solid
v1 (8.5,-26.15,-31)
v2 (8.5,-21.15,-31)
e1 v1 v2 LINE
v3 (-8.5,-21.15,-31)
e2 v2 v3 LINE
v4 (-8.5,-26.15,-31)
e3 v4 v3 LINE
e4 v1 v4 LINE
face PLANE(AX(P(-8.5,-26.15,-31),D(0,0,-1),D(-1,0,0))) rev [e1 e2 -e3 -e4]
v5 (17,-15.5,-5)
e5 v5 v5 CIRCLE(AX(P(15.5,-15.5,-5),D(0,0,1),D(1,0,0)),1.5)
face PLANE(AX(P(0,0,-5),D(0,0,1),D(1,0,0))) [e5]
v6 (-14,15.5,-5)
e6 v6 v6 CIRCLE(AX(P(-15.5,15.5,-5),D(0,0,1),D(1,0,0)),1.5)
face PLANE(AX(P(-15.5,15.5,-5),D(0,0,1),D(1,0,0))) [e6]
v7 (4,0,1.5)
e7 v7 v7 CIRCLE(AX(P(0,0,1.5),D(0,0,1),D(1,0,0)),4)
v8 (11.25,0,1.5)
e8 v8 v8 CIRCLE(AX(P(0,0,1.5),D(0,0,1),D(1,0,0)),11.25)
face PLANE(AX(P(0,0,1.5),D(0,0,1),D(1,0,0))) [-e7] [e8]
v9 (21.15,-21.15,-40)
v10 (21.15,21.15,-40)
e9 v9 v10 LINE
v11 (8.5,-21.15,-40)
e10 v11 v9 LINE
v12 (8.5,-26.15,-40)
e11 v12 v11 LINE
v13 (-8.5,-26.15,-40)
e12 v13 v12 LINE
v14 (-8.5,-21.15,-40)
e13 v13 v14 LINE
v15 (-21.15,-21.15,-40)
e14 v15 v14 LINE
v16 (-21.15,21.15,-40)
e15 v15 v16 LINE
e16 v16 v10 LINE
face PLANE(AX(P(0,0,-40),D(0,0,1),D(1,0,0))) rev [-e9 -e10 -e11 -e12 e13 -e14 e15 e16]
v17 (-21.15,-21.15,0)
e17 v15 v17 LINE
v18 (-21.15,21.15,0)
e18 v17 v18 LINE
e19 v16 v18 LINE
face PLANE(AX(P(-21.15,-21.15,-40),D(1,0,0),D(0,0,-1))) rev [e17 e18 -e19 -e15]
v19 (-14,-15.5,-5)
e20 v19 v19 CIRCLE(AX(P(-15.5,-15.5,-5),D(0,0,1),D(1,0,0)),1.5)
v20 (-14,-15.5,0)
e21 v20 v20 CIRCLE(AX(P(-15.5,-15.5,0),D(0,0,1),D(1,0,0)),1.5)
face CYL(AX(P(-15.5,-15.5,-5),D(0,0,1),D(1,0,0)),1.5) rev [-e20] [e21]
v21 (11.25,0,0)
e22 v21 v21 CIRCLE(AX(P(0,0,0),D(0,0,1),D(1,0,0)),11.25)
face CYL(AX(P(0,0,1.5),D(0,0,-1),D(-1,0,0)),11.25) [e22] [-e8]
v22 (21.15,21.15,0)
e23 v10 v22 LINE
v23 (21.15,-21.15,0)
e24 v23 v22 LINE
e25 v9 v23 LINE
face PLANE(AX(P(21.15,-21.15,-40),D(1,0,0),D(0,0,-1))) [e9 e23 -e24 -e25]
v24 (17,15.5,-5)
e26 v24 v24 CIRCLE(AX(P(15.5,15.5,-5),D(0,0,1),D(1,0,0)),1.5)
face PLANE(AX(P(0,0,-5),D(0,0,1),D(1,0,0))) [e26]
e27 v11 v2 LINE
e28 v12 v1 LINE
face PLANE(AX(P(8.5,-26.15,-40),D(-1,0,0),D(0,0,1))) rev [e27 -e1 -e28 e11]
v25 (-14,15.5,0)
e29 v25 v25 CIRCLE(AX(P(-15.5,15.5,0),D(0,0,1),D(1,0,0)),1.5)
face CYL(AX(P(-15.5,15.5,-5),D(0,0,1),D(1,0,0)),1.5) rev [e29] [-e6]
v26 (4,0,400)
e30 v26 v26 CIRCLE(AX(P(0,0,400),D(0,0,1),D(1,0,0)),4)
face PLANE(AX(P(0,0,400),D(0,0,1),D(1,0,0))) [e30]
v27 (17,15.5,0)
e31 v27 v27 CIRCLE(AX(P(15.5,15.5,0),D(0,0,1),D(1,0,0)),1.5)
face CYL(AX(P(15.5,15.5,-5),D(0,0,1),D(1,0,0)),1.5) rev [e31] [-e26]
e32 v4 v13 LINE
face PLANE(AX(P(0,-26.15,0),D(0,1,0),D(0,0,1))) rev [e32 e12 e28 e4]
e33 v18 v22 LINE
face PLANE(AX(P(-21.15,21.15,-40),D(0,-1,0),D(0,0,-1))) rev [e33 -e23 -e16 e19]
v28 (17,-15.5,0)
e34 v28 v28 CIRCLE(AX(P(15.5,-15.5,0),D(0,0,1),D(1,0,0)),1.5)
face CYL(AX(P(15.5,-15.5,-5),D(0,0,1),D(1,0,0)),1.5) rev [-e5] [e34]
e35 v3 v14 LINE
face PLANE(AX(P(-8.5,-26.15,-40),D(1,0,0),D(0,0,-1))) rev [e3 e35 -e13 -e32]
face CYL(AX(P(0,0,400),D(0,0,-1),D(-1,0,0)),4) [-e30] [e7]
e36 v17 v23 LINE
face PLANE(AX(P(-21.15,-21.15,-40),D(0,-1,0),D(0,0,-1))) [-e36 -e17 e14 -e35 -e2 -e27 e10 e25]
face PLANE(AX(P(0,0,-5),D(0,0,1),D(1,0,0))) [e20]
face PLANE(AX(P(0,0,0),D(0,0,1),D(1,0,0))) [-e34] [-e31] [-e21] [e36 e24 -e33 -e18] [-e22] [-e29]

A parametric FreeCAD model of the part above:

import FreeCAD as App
import Part
import Sketcher
Q = App.Units.Quantity

doc = App.newDocument("Part")
body = doc.addObject("PartDesign::Body", "Body")

# Sketch on XY plane
sketch1 = doc.addObject("Sketcher::SketchObject", "Sketch")
body.addObject(sketch1)
sketch1.AttachmentSupport = (doc.XY_Plane, [""])
sketch1.MapMode = "FlatFace"
sketch1.addGeometry([
    Part.LineSegment(App.Vector(-21, 21, 0), App.Vector(-21, -21, 0)),
    Part.LineSegment(App.Vector(-21, -21, 0), App.Vector(21, -21, 0)),
    Part.LineSegment(App.Vector(21, -21, 0), App.Vector(21, 21, 0)),
    Part.LineSegment(App.Vector(21, 21, 0), App.Vector(-21, 21, 0)),
], False)
sketch1.addConstraint([
    Sketcher.Constraint("Coincident", 0, 2, 1, 1),
    Sketcher.Constraint("Coincident", 1, 2, 2, 1),
    Sketcher.Constraint("Coincident", 2, 2, 3, 1),
    Sketcher.Constraint("Coincident", 3, 2, 0, 1),
    Sketcher.Constraint("Vertical", 0),
    Sketcher.Constraint("Horizontal", 1),
    Sketcher.Constraint("Vertical", 2),
    Sketcher.Constraint("Horizontal", 3),
    Sketcher.Constraint("Symmetric", 0, 2, 2, 2, -1, 1),
    Sketcher.Constraint("Equal", 3, 0),
    Sketcher.Constraint("DistanceX", 1, 1, 1, 2, Q("42.3 mm")),
])
pad1 = doc.addObject("PartDesign::Pad", "Pad")
body.addObject(pad1)
pad1.Profile = sketch1
pad1.Length = 40
pad1.Reversed = True

# Sketch on XY plane
sketch2 = doc.addObject("Sketcher::SketchObject", "Sketch001")
body.addObject(sketch2)
sketch2.AttachmentSupport = (doc.XY_Plane, [""])
sketch2.MapMode = "FlatFace"
sketch2.addGeometry([
    Part.Circle(App.Vector(-15.5, -15.5, 0), App.Vector(0, 0, 1), 1.5),
    Part.Circle(App.Vector(15.5, 15.5, 0), App.Vector(0, 0, 1), 1.5),
    Part.Circle(App.Vector(15.5, -15.5, 0), App.Vector(0, 0, 1), 1.5),
    Part.Circle(App.Vector(-15.5, 15.5, 0), App.Vector(0, 0, 1), 1.5),
], False)
sketch2.addConstraint([
    Sketcher.Constraint("Equal", 0, 1),
    Sketcher.Constraint("Equal", 1, 2),
    Sketcher.Constraint("Equal", 2, 3),
    Sketcher.Constraint("Symmetric", 0, 3, 1, 3, -1, 1),
    Sketcher.Constraint("Symmetric", 2, 3, 3, 3, -1, 1),
    Sketcher.Constraint("Symmetric", 0, 3, 2, 3, -2),
    Sketcher.Constraint("Diameter", 0, Q("3 mm")),
    Sketcher.Constraint("DistanceX", 0, 3, 1, 3, Q("31 mm")),
    Sketcher.Constraint("DistanceY", 0, 3, 1, 3, Q("31 mm")),
])
pocket1 = doc.addObject("PartDesign::Pocket", "Pocket")
body.addObject(pocket1)
pocket1.Profile = sketch2
pocket1.Length = 5

# Sketch on XY plane
sketch3 = doc.addObject("Sketcher::SketchObject", "Sketch002")
body.addObject(sketch3)
sketch3.AttachmentSupport = (doc.XY_Plane, [""])
sketch3.MapMode = "FlatFace"
sketch3.addGeometry([
    Part.Circle(App.Vector(0, 0, 0), App.Vector(0, 0, 1), 11.2),
    Part.Circle(App.Vector(0, 0, 0), App.Vector(0, 0, 1), 4),
], False)
sketch3.addConstraint([
    Sketcher.Constraint("Coincident", 0, 3, -1, 1),
    Sketcher.Constraint("Coincident", 1, 3, -1, 1),
    Sketcher.Constraint("Diameter", 1, Q("8 mm")),
    Sketcher.Constraint("Diameter", 0, Q("22.5 mm")),
])
pad2 = doc.addObject("PartDesign::Pad", "Pad001")
body.addObject(pad2)
pad2.Profile = sketch3
pad2.Length = 1.5

# Sketch on XY plane
sketch4 = doc.addObject("Sketcher::SketchObject", "Sketch003")
body.addObject(sketch4)
sketch4.AttachmentSupport = (doc.XY_Plane, [""])
sketch4.MapMode = "FlatFace"
sketch4.addGeometry(Part.Circle(App.Vector(0, 0, 0), App.Vector(0, 0, 1), 4), False)
sketch4.addConstraint([
    Sketcher.Constraint("Coincident", 0, 3, -1, 1),
    Sketcher.Constraint("Diameter", 0, Q("8 mm")),
])
pad3 = doc.addObject("PartDesign::Pad", "Pad002")
body.addObject(pad3)
pad3.Profile = sketch4
pad3.Length = 400

# Sketch on XZ plane
sketch5 = doc.addObject("Sketcher::SketchObject", "Sketch004")
body.addObject(sketch5)
sketch5.AttachmentSupport = (doc.XZ_Plane, [""])
sketch5.MapMode = "FlatFace"
sketch5.AttachmentOffset = App.Placement(App.Vector(0, 0, 21.15), App.Rotation())
sketch5.addGeometry([
    Part.LineSegment(App.Vector(-8, -31, 0), App.Vector(-8, -40, 0)),
    Part.LineSegment(App.Vector(-8, -40, 0), App.Vector(8, -40, 0)),
    Part.LineSegment(App.Vector(8, -40, 0), App.Vector(8, -31, 0)),
    Part.LineSegment(App.Vector(8, -31, 0), App.Vector(-8, -31, 0)),
], False)
sketch5.addConstraint([
    Sketcher.Constraint("Coincident", 0, 2, 1, 1),
    Sketcher.Constraint("Coincident", 1, 2, 2, 1),
    Sketcher.Constraint("Coincident", 2, 2, 3, 1),
    Sketcher.Constraint("Coincident", 3, 2, 0, 1),
    Sketcher.Constraint("Vertical", 0),
    Sketcher.Constraint("Horizontal", 1),
    Sketcher.Constraint("Vertical", 2),
    Sketcher.Constraint("Horizontal", 3),
    Sketcher.Constraint("DistanceX", 1, 1, 1, 2, Q("17 mm")),
    Sketcher.Constraint("DistanceY", 0, 2, 0, 1, Q("9 mm")),
    Sketcher.Constraint("DistanceY", 0, 2, -1, 1, Q("40 mm")),
    Sketcher.Constraint("DistanceX", 0, 2, -1, 1, Q("8.5 mm")),
])
pad4 = doc.addObject("PartDesign::Pad", "Pad003")
body.addObject(pad4)
pad4.Profile = sketch5
pad4.Length = 5

doc.recompute()
